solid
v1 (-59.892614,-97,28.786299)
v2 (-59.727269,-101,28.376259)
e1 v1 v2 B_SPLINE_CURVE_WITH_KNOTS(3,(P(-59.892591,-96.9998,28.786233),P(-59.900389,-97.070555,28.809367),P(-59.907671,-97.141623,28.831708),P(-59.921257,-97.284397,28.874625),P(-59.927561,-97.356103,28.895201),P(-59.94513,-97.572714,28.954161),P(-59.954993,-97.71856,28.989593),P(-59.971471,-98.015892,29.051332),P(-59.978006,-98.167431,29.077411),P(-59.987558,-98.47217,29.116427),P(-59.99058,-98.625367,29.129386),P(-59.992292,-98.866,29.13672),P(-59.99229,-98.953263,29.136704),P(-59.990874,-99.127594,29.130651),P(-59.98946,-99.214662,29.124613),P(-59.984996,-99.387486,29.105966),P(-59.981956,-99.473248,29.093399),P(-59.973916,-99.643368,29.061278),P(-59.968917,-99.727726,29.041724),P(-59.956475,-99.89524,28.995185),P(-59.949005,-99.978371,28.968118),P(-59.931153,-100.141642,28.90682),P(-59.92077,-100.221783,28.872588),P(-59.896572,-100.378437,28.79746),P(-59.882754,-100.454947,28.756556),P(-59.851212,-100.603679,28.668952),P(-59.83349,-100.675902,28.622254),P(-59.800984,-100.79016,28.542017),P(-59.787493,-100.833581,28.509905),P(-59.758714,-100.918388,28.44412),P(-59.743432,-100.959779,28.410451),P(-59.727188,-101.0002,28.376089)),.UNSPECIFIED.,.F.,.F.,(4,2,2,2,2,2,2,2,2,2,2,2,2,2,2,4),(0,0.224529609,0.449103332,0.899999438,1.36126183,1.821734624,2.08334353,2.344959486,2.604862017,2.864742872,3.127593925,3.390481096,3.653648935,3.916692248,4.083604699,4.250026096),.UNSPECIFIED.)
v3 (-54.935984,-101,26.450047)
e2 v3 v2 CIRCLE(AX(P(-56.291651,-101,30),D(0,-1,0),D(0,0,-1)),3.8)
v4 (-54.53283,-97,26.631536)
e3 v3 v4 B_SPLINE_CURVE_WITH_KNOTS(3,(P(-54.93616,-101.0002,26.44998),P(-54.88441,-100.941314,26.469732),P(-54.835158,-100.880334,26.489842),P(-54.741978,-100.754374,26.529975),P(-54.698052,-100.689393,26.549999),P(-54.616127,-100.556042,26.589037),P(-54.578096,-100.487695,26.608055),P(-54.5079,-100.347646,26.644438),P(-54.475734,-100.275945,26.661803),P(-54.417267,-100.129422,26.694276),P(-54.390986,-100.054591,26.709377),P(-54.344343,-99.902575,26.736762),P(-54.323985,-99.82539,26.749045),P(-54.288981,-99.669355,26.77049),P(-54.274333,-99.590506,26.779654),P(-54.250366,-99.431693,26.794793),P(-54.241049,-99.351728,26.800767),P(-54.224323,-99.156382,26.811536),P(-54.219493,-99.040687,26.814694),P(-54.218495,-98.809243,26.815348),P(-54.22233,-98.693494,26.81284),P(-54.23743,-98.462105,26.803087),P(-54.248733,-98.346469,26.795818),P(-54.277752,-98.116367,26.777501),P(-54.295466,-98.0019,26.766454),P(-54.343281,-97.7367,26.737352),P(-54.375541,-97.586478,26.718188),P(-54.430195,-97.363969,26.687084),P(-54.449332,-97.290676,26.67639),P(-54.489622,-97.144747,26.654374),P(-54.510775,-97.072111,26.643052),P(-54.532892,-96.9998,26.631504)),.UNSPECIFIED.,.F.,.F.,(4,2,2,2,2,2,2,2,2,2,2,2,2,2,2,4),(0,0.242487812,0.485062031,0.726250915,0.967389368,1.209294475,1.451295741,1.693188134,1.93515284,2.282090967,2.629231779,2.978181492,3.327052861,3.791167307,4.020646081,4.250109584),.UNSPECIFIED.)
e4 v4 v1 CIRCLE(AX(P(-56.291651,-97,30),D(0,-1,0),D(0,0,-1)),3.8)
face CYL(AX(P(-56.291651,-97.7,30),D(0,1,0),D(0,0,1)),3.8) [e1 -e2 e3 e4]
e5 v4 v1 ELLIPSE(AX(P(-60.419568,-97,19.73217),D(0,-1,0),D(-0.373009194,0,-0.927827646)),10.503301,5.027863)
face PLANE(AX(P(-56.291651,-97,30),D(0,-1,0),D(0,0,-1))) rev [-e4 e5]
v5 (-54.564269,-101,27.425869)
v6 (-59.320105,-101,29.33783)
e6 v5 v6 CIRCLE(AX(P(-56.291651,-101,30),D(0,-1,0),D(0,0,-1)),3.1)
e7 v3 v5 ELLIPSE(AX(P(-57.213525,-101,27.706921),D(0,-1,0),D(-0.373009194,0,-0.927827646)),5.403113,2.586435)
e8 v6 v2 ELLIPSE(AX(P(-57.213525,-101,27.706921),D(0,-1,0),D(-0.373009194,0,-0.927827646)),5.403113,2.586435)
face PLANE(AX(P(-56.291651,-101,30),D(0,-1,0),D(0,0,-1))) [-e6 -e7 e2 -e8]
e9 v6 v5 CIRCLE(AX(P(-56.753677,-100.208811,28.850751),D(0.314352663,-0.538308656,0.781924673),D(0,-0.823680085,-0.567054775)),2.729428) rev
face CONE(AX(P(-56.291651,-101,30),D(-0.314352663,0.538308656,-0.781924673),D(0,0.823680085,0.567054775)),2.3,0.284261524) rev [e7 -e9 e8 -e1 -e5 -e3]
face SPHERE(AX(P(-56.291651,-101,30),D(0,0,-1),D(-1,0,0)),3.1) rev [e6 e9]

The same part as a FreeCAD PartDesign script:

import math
import FreeCAD as App
import Part
import Sketcher
Q = App.Units.Quantity


def add_polygon(sketch, points):
    """Adds a closed chain of lines whose ends are joined by coincident constraints."""
    first, n = sketch.GeometryCount, len(points)
    for a, b in zip(points, points[1:] + points[:1]):
        sketch.addGeometry(Part.LineSegment(App.Vector(*a, 0), App.Vector(*b, 0)), False)
    for i in range(n):
        sketch.addConstraint(Sketcher.Constraint("Coincident", first + i, 2, first + (i + 1) % n, 1))

doc = App.newDocument("Part")
body = doc.addObject("PartDesign::Body", "Body")

sketch1 = body.newObject("Sketcher::SketchObject", "Sketch")
sketch1.AttachmentSupport = (doc.getObject("XZ_Plane"), [""])
sketch1.MapMode = "FlatFace"
sketch1.AttachmentOffset = App.Placement(App.Vector(0, 0, 97), App.Rotation())
sketch1.addGeometry([
    Part.LineSegment(App.Vector(-59.811552, 28.568114, 0), App.Vector(-55.77175, 26.235733, 0)),
    Part.ArcOfCircle(Part.Circle(App.Vector(-56.291651, 30, 0), App.Vector(0, 0, 1), 3.8), math.radians(-82.136354), math.radians(202.136354)),
], False)
sketch1.addConstraint([
    Sketcher.Constraint("Coincident", 0, 1, 1, 2),
    Sketcher.Constraint("Coincident", 1, 1, 0, 2),
    Sketcher.Constraint("Radius", 1, 3.8),
    Sketcher.Constraint("Angle", 0, Q("-30 deg")),
    Sketcher.Constraint("DistanceY", -1, 1, 1, 3, 30.0),
    Sketcher.Constraint("DistanceX", 0, 1, 1, 3, 3.519901),
    Sketcher.Constraint("DistanceX", 1, 3, -1, 1, 56.291651),
])
pad1 = body.newObject("PartDesign::Pad", "Pad")
pad1.Profile = sketch1
pad1.Length = 0.7

sketch2 = body.newObject("Sketcher::SketchObject", "Sketch001")
sketch2.AttachmentSupport = (doc.getObject("XZ_Plane"), [""])
sketch2.MapMode = "FlatFace"
sketch2.AttachmentOffset = App.Placement(App.Vector(0, 0, 97.7), App.Rotation())
sketch2.addGeometry(Part.Circle(App.Vector(-56.291651, 30, 0), App.Vector(0, 0, 1), 3.8), False)
sketch2.addConstraint([
    Sketcher.Constraint("Diameter", 0, 7.6),
    Sketcher.Constraint("DistanceY", -1, 1, 0, 3, 30.0),
    Sketcher.Constraint("DistanceX", 0, 3, -1, 1, 56.291651),
])
pad2 = body.newObject("PartDesign::Pad", "Pad001")
pad2.Profile = sketch2
pad2.Length = 3.3

sketch3 = body.newObject("Sketcher::SketchObject", "Sketch002")
sketch3.AttachmentSupport = (doc.getObject("XZ_Plane"), [""])
sketch3.MapMode = "FlatFace"
sketch3.AttachmentOffset = App.Placement(App.Vector(0, 0, 101), App.Rotation())
sketch3.addGeometry([
    Part.LineSegment(App.Vector(-56.291651, 33.1, 0), App.Vector(-56.291651, 26.9, 0)),
    Part.ArcOfCircle(Part.Circle(App.Vector(-56.291651, 30, 0), App.Vector(0, 0, 1), 3.1), math.radians(-90), math.radians(90)),
], False)
sketch3.addGeometry(Part.LineSegment(App.Vector(-56.291651, 26.9, 0), App.Vector(-56.291651, 33.1, 0)), True)
sketch3.addConstraint([
    Sketcher.Constraint("Coincident", 0, 1, 1, 2),
    Sketcher.Constraint("Coincident", 1, 1, 0, 2),
    Sketcher.Constraint("Vertical", 0),
    Sketcher.Constraint("Vertical", 2),
    Sketcher.Constraint("Coincident", 2, 1, 1, 1),
    Sketcher.Constraint("Vertical", 1, 3, 0, 1),
    Sketcher.Constraint("Equal", 0, 2),
    Sketcher.Constraint("Radius", 1, 3.1),
    Sketcher.Constraint("DistanceY", -1, 1, 1, 3, 30.0),
    Sketcher.Constraint("DistanceX", 1, 3, -1, 1, 56.291651),
])
groove = body.newObject("PartDesign::Groove", "Groove")
groove.Profile = sketch3
groove.ReferenceAxis = (sketch3, ["Axis0"])
groove.Angle = 360

sketch4 = body.newObject("Sketcher::SketchObject", "Sketch003")
sketch4.Placement = App.Placement(App.Vector(-75.194143, -14.119516, 20.50942), App.Rotation(App.Vector(-0.254478546, -0.047784493, -0.965897154), App.Vector(-0.184548819, 0.982823348, 0), App.Vector(0.949306275, 0.178255179, -0.258926028), "ZXY"))
add_polygon(sketch4, [(-9.825663, -88.8766), (-8.475389, -90.738524), (14.088996, -82.675838), (8.793573, -75.373859)])
sketch4.addGeometry(Part.LineSegment(App.Vector(-9.825663, -88.8766, 0), App.Vector(8.793573, -75.373859, 0)), True)
sketch4.addConstraint([
    Sketcher.Constraint("Coincident", 4, 1, 3, 2),
    Sketcher.Constraint("Coincident", 4, 2, 2, 2),
    Sketcher.Constraint("Parallel", 0, 2),
    Sketcher.Constraint("Perpendicular", 2, 3),
    Sketcher.Constraint("Distance", 3, 23.0),
    Sketcher.Constraint("Distance", 0, 2.3),
    Sketcher.Constraint("Distance", 2, 9.02),
    Sketcher.Constraint("DistanceY", 3, 2, -1, 1, 88.8766),
    Sketcher.Constraint("DistanceX", 0, 2, -1, 1, 8.475389),
    Sketcher.Constraint("DistanceY", 2, 2, -1, 1, 75.373859),
])
groove2 = body.newObject("PartDesign::Groove", "Groove001")
groove2.Profile = sketch4
groove2.ReferenceAxis = (sketch4, ["Axis0"])
groove2.Angle = 360

doc.recompute()
